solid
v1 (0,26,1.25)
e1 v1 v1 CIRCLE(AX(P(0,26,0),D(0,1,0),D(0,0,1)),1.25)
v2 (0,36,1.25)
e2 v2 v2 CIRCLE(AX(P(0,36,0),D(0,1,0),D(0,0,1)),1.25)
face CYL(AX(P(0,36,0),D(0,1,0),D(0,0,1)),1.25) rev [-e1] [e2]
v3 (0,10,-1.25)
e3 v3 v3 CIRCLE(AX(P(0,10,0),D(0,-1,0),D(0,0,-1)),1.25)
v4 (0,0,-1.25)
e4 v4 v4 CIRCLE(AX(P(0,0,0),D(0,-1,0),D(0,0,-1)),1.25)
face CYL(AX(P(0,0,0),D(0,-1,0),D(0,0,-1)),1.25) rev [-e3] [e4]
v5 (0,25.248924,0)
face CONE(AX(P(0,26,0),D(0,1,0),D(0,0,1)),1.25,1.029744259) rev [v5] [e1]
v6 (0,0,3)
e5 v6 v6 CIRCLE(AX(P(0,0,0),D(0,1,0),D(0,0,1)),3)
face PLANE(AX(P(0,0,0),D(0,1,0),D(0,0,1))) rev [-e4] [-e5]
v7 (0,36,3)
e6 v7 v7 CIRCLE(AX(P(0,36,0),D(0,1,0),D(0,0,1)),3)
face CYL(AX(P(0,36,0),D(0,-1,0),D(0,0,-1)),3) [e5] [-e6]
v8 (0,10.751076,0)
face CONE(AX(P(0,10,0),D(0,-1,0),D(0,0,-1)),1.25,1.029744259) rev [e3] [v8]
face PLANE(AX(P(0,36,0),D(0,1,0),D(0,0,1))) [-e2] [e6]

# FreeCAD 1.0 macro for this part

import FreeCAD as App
import Part
import Sketcher
from FreeCAD import Vector
Q = App.Units.Quantity

doc = App.newDocument("Part")
body = doc.addObject("PartDesign::Body", "Body")

# Sketch on XZ plane
sketch1 = body.newObject("Sketcher::SketchObject", "Sketch")
sketch1.AttachmentSupport = (doc.getObject("XZ_Plane"), [""])
sketch1.MapMode = "FlatFace"
sketch1.addGeometry(Part.Circle(Vector(0, 0, 0), Vector(0, 0, 1), 3), False)
sketch1.addConstraint([
    Sketcher.Constraint("Coincident", 0, 3, -1, 1),
    Sketcher.Constraint("Diameter", 0, Q("6 mm")),
])
pad1 = body.newObject("PartDesign::Pad", "Pad")
pad1.Profile = sketch1
pad1.Length = 36
pad1.Reversed = True

# Sketch on XZ plane
sketch2 = body.newObject("Sketcher::SketchObject", "Sketch001")
sketch2.AttachmentSupport = (doc.getObject("XZ_Plane"), [""])
sketch2.MapMode = "FlatFace"
sketch2.AttachmentOffset = App.Placement(Vector(0, 0, -36), App.Rotation())
sketch2.addGeometry(Part.Circle(Vector(0, 0, 0), Vector(0, 0, 1), 1.25), False)
sketch2.addConstraint([
    Sketcher.Constraint("Coincident", 0, 3, -1, 1),
    Sketcher.Constraint("Diameter", 0, Q("2.5 mm")),
])
doc.recompute()
hole = body.newObject("PartDesign::Hole", "Hole")
hole.Profile = sketch2
hole.ThreadType = "None"
hole.Diameter = 2.5
hole.DepthType = "Dimension"
hole.Depth = 10
hole.DrillPoint = "Angled"
hole.DrillPointAngle = 118
hole.Reversed = True

# Sketch on XZ plane
sketch3 = body.newObject("Sketcher::SketchObject", "Sketch002")
sketch3.AttachmentSupport = (doc.getObject("XZ_Plane"), [""])
sketch3.MapMode = "FlatFace"
sketch3.addGeometry(Part.Circle(Vector(0, 0, 0), Vector(0, 0, 1), 1.25), False)
sketch3.addConstraint([
    Sketcher.Constraint("Coincident", 0, 3, -1, 1),
    Sketcher.Constraint("Diameter", 0, Q("2.5 mm")),
])
doc.recompute()
hole2 = body.newObject("PartDesign::Hole", "Hole001")
hole2.Profile = sketch3
hole2.ThreadType = "None"
hole2.Diameter = 2.5
hole2.DepthType = "Dimension"
hole2.Depth = 10
hole2.DrillPoint = "Angled"
hole2.DrillPointAngle = 118

doc.recompute()
